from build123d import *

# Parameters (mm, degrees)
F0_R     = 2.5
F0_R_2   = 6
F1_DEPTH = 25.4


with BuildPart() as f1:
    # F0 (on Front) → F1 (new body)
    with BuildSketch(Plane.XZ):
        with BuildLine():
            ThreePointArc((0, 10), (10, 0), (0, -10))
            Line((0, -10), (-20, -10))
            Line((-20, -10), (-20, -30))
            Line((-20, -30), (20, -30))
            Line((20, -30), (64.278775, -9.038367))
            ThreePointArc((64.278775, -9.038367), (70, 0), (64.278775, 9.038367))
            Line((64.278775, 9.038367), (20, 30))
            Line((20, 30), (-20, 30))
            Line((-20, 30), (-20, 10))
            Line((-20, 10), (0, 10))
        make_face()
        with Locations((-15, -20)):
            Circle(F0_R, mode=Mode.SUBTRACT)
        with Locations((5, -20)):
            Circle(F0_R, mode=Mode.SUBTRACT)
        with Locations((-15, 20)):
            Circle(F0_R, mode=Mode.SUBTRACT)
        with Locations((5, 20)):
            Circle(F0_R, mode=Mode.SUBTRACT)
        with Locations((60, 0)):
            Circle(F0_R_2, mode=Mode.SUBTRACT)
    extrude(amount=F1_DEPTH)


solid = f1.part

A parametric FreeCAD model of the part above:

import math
import FreeCAD as App
import Part
import Sketcher
from FreeCAD import Vector

doc = App.newDocument("Part")
body = doc.addObject("PartDesign::Body", "Body")

# Sketch on XZ plane
sketch1 = body.newObject("Sketcher::SketchObject", "Sketch")
sketch1.AttachmentSupport = (doc.getObject("XZ_Plane"), [""])
sketch1.MapMode = "FlatFace"
sketch1.addGeometry([
    Part.ArcOfCircle(Part.Circle(Vector(0, 0, 0), Vector(0, 0, 1), 10), math.radians(-90), math.radians(90)),  # 0
    Part.LineSegment(Vector(0, -10, 0), Vector(-20, -10, 0)),  # 1
    Part.LineSegment(Vector(-20, -10, 0), Vector(-20, -30, 0)),  # 2
    Part.LineSegment(Vector(-20, -30, 0), Vector(20, -30, 0)),  # 3
    Part.LineSegment(Vector(20, -30, 0), Vector(64.3, -9, 0)),  # 4
    Part.ArcOfCircle(Part.Circle(Vector(60, 0, 0), Vector(0, 0, 1), 10), math.radians(-65), math.radians(65)),  # 5
    Part.LineSegment(Vector(64.3, 9, 0), Vector(20, 30, 0)),  # 6
    Part.LineSegment(Vector(20, 30, 0), Vector(-20, 30, 0)),  # 7
    Part.LineSegment(Vector(-20, 30, 0), Vector(-20, 10, 0)),  # 8
    Part.LineSegment(Vector(-20, 10, 0), Vector(0, 10, 0)),  # 9
    Part.Circle(Vector(-15, -20, 0), Vector(0, 0, 1), 2.5),  # 10
    Part.Circle(Vector(5, -20, 0), Vector(0, 0, 1), 2.5),  # 11
    Part.Circle(Vector(-15, 20, 0), Vector(0, 0, 1), 2.5),  # 12
    Part.Circle(Vector(5, 20, 0), Vector(0, 0, 1), 2.5),  # 13
    Part.Circle(Vector(60, 0, 0), Vector(0, 0, 1), 6),  # 14
], False)
sketch1.addConstraint([
    Sketcher.Constraint("Tangent", 0, 1, 1, 1),
    Sketcher.Constraint("Coincident", 1, 2, 2, 1),
    Sketcher.Constraint("Coincident", 2, 2, 3, 1),
    Sketcher.Constraint("Coincident", 3, 2, 4, 1),
    Sketcher.Constraint("Tangent", 4, 2, 5, 1),
    Sketcher.Constraint("Tangent", 5, 2, 6, 1),
    Sketcher.Constraint("Coincident", 6, 2, 7, 1),
    Sketcher.Constraint("Coincident", 7, 2, 8, 1),
    Sketcher.Constraint("Coincident", 8, 2, 9, 1),
    Sketcher.Constraint("Tangent", 9, 2, 0, 2),
    Sketcher.Constraint("Horizontal", 1),
    Sketcher.Constraint("Vertical", 2),
    Sketcher.Constraint("Horizontal", 3),
    Sketcher.Constraint("Horizontal", 7),
    Sketcher.Constraint("Vertical", 8),
    Sketcher.Constraint("Horizontal", 9),
    Sketcher.Constraint("Coincident", 0, 3, -1, 1),
    Sketcher.Constraint("Coincident", 14, 3, 5, 3),
    Sketcher.Constraint("Equal", 0, 5),
    Sketcher.Constraint("Equal", 10, 11),
    Sketcher.Constraint("Equal", 11, 12),
    Sketcher.Constraint("Equal", 12, 13),
    Sketcher.Constraint("Symmetric", 2, 2, 6, 2, -1, 1),
    Sketcher.Constraint("Symmetric", 10, 3, 12, 3, -1),
    Sketcher.Constraint("Symmetric", 11, 3, 13, 3, -1),
    Sketcher.Constraint("Symmetric", 4, 2, 5, 2, -1),
    Sketcher.Constraint("Horizontal", 10, 3, 11, 3),
    Sketcher.Constraint("Vertical", 2, 2, 7, 2),
    Sketcher.Constraint("Equal", 9, 2),
    Sketcher.Constraint("Diameter", 10, 5.0),
    Sketcher.Constraint("Diameter", 14, 12.0),
    Sketcher.Constraint("Radius", 0, 10.0),
    Sketcher.Constraint("DistanceX", 1, 2, 1, 1, 20.0),
    Sketcher.Constraint("DistanceX", -1, 1, 5, 3, 60.000001),
    Sketcher.Constraint("DistanceX", 10, 3, -1, 1, 15.0),
    Sketcher.Constraint("DistanceY", 10, 3, -1, 1, 20.0),
    Sketcher.Constraint("DistanceX", -1, 1, 11, 3, 5.0),
])
pad1 = body.newObject("PartDesign::Pad", "Pad")
pad1.Profile = sketch1
pad1.Length = 25.4

doc.recompute()
